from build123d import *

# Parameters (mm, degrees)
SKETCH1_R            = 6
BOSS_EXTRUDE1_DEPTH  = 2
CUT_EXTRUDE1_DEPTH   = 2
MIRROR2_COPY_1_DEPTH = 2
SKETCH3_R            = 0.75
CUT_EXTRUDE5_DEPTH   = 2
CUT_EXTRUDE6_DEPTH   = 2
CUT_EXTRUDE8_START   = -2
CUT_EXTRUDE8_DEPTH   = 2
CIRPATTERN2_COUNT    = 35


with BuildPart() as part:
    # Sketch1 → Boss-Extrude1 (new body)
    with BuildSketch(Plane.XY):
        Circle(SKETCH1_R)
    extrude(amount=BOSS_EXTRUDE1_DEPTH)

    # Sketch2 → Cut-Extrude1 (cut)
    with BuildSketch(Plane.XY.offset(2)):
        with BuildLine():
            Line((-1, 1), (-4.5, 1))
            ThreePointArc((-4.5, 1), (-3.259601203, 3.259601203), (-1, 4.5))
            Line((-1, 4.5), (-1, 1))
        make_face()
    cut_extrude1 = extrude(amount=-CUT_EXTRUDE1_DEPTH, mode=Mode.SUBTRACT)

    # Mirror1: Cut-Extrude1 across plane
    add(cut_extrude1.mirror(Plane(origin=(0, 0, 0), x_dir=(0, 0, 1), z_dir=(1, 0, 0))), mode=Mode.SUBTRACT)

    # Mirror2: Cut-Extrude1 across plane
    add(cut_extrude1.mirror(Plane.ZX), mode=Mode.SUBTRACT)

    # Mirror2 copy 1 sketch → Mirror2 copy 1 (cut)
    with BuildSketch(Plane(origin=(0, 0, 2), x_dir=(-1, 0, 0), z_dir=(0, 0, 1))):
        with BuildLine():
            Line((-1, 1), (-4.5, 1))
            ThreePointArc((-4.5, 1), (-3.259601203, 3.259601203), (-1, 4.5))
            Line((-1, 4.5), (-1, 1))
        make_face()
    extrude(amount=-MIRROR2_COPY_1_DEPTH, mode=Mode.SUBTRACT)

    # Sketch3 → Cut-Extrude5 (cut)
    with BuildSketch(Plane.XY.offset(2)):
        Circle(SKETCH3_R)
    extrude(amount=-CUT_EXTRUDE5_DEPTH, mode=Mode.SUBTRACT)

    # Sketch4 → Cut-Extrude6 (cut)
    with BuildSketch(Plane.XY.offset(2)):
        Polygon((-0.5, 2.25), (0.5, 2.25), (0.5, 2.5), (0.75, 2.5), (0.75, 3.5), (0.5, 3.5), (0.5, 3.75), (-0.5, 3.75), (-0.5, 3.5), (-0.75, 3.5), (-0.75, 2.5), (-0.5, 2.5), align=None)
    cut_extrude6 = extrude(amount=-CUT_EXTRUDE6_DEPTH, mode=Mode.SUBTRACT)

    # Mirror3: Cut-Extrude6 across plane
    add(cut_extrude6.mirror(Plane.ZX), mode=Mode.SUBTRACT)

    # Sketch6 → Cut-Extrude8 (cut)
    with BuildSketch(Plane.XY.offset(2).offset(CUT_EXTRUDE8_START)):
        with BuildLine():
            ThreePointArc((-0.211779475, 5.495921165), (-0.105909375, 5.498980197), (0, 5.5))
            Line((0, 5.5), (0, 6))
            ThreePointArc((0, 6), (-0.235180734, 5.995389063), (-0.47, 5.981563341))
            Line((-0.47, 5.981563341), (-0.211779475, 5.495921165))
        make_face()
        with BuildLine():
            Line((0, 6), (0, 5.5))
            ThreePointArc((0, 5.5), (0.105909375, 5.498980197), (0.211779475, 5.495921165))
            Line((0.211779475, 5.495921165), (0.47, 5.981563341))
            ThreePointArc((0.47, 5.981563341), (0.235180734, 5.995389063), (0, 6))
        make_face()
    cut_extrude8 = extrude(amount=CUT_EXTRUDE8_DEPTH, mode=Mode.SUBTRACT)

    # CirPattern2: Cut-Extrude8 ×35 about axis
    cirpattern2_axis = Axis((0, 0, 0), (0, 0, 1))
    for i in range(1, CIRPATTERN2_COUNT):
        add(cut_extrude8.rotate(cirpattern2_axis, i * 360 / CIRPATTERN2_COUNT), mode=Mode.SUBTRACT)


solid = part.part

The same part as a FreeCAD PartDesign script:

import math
import FreeCAD as App
import Part
import Sketcher
from FreeCAD import Vector
Q = App.Units.Quantity

doc = App.newDocument("Part")
body = doc.addObject("PartDesign::Body", "Body")

# Sketch on XY plane
sketch1 = doc.addObject("Sketcher::SketchObject", "Sketch")
body.addObject(sketch1)
sketch1.AttachmentSupport = (doc.XY_Plane, [""])
sketch1.MapMode = "FlatFace"
sketch1.addGeometry(Part.Circle(Vector(0, 0, 0), Vector(0, 0, 1), 6), False)
sketch1.addConstraint([
    Sketcher.Constraint("Coincident", 0, 3, -1, 1),
    Sketcher.Constraint("Diameter", 0, 12.0),
])
pad1 = doc.addObject("PartDesign::Pad", "Pad")
body.addObject(pad1)
pad1.Profile = sketch1
pad1.Length = 2

# Sketch on XY plane
sketch2 = doc.addObject("Sketcher::SketchObject", "Sketch001")
body.addObject(sketch2)
sketch2.AttachmentSupport = (doc.XY_Plane, [""])
sketch2.MapMode = "FlatFace"
sketch2.AttachmentOffset = App.Placement(Vector(0, 0, 2), App.Rotation())
sketch2.addGeometry([
    Part.LineSegment(Vector(-4.5, 1, 0), Vector(-1, 1, 0)),
    Part.LineSegment(Vector(-1, 1, 0), Vector(-1, 4.5, 0)),
    Part.ArcOfCircle(Part.Circle(Vector(0, 0, 0), Vector(0, 0, 1), 4.6), math.radians(103), math.radians(167)),
], False)
sketch2.addConstraint([
    Sketcher.Constraint("Coincident", 0, 2, 1, 1),
    Sketcher.Constraint("Coincident", 1, 2, 2, 1),
    Sketcher.Constraint("Coincident", 2, 2, 0, 1),
    Sketcher.Constraint("Horizontal", 0),
    Sketcher.Constraint("Vertical", 1),
    Sketcher.Constraint("Coincident", 2, 3, -1, 1),
    Sketcher.Constraint("Equal", 0, 1),
    Sketcher.Constraint("DistanceX", 0, 1, 0, 2, 3.5),
    Sketcher.Constraint("DistanceX", 0, 2, -1, 1, 1.0),
])
pocket1 = doc.addObject("PartDesign::Pocket", "Pocket")
body.addObject(pocket1)
pocket1.Profile = sketch2
pocket1.Length = 2
doc.recompute()

mirrored = doc.addObject("PartDesign::Mirrored", "Mirrored")
body.addObject(mirrored)
mirrored.Originals = [pocket1]
mirrored.MirrorPlane = (doc.YZ_Plane, [""])
body.Tip = mirrored
doc.recompute()

mirrored2 = doc.addObject("PartDesign::Mirrored", "Mirrored001")
body.addObject(mirrored2)
mirrored2.Originals = [pocket1]
mirrored2.MirrorPlane = (doc.XZ_Plane, [""])
body.Tip = mirrored2

# Sketch on XY plane
sketch3 = doc.addObject("Sketcher::SketchObject", "Sketch002")
body.addObject(sketch3)
sketch3.AttachmentSupport = (doc.XY_Plane, [""])
sketch3.MapMode = "FlatFace"
sketch3.AttachmentOffset = App.Placement(Vector(0, 0, 2), App.Rotation())
sketch3.addGeometry([
    Part.LineSegment(Vector(4.5, -1, 0), Vector(1, -1, 0)),
    Part.LineSegment(Vector(1, -1, 0), Vector(1, -4.5, 0)),
    Part.ArcOfCircle(Part.Circle(Vector(0, 0, 0), Vector(0, 0, 1), 4.6), math.radians(-77), math.radians(-13)),
], False)
sketch3.addConstraint([
    Sketcher.Constraint("Coincident", 0, 2, 1, 1),
    Sketcher.Constraint("Coincident", 1, 2, 2, 1),
    Sketcher.Constraint("Coincident", 2, 2, 0, 1),
    Sketcher.Constraint("Horizontal", 0),
    Sketcher.Constraint("Vertical", 1),
    Sketcher.Constraint("Coincident", 2, 3, -1, 1),
    Sketcher.Constraint("Equal", 0, 1),
    Sketcher.Constraint("DistanceX", 0, 2, 0, 1, 3.5),
    Sketcher.Constraint("DistanceX", -1, 1, 0, 2, 1.0),
])
pocket2 = doc.addObject("PartDesign::Pocket", "Pocket001")
body.addObject(pocket2)
pocket2.Profile = sketch3
pocket2.Length = 2

# Sketch on XY plane
sketch4 = doc.addObject("Sketcher::SketchObject", "Sketch003")
body.addObject(sketch4)
sketch4.AttachmentSupport = (doc.XY_Plane, [""])
sketch4.MapMode = "FlatFace"
sketch4.AttachmentOffset = App.Placement(Vector(0, 0, 2), App.Rotation())
sketch4.addGeometry(Part.Circle(Vector(0, 0, 0), Vector(0, 0, 1), 0.8), False)
sketch4.addConstraint([
    Sketcher.Constraint("Coincident", 0, 3, -1, 1),
    Sketcher.Constraint("Diameter", 0, 1.5),
])
pocket3 = doc.addObject("PartDesign::Pocket", "Pocket002")
body.addObject(pocket3)
pocket3.Profile = sketch4
pocket3.Length = 2

# Sketch on XY plane
sketch5 = doc.addObject("Sketcher::SketchObject", "Sketch004")
body.addObject(sketch5)
sketch5.AttachmentSupport = (doc.XY_Plane, [""])
sketch5.MapMode = "FlatFace"
sketch5.AttachmentOffset = App.Placement(Vector(0, 0, 2), App.Rotation())
sketch5.addGeometry([
    Part.LineSegment(Vector(-0.5, 2.25, 0), Vector(0.5, 2.25, 0)),  # 0
    Part.LineSegment(Vector(0.5, 2.25, 0), Vector(0.5, 2.5, 0)),  # 1
    Part.LineSegment(Vector(0.5, 2.5, 0), Vector(0.75, 2.5, 0)),  # 2
    Part.LineSegment(Vector(0.75, 2.5, 0), Vector(0.75, 3.5, 0)),  # 3
    Part.LineSegment(Vector(0.75, 3.5, 0), Vector(0.5, 3.5, 0)),  # 4
    Part.LineSegment(Vector(0.5, 3.5, 0), Vector(0.5, 3.75, 0)),  # 5
    Part.LineSegment(Vector(0.5, 3.75, 0), Vector(-0.5, 3.75, 0)),  # 6
    Part.LineSegment(Vector(-0.5, 3.75, 0), Vector(-0.5, 3.5, 0)),  # 7
    Part.LineSegment(Vector(-0.5, 3.5, 0), Vector(-0.75, 3.5, 0)),  # 8
    Part.LineSegment(Vector(-0.75, 3.5, 0), Vector(-0.75, 2.5, 0)),  # 9
    Part.LineSegment(Vector(-0.75, 2.5, 0), Vector(-0.5, 2.5, 0)),  # 10
    Part.LineSegment(Vector(-0.5, 2.5, 0), Vector(-0.5, 2.25, 0)),  # 11
], False)
sketch5.addConstraint([
    Sketcher.Constraint("Coincident", 0, 2, 1, 1),
    Sketcher.Constraint("Coincident", 1, 2, 2, 1),
    Sketcher.Constraint("Coincident", 2, 2, 3, 1),
    Sketcher.Constraint("Coincident", 3, 2, 4, 1),
    Sketcher.Constraint("Coincident", 4, 2, 5, 1),
    Sketcher.Constraint("Coincident", 5, 2, 6, 1),
    Sketcher.Constraint("Coincident", 6, 2, 7, 1),
    Sketcher.Constraint("Coincident", 7, 2, 8, 1),
    Sketcher.Constraint("Coincident", 8, 2, 9, 1),
    Sketcher.Constraint("Coincident", 9, 2, 10, 1),
    Sketcher.Constraint("Coincident", 10, 2, 11, 1),
    Sketcher.Constraint("Coincident", 11, 2, 0, 1),
    Sketcher.Constraint("Horizontal", 0),
    Sketcher.Constraint("Vertical", 1),
    Sketcher.Constraint("Horizontal", 2),
    Sketcher.Constraint("Vertical", 3),
    Sketcher.Constraint("Horizontal", 4),
    Sketcher.Constraint("Vertical", 5),
    Sketcher.Constraint("Horizontal", 6),
    Sketcher.Constraint("Vertical", 7),
    Sketcher.Constraint("Horizontal", 8),
    Sketcher.Constraint("Vertical", 9),
    Sketcher.Constraint("Horizontal", 10),
    Sketcher.Constraint("Vertical", 11),
    Sketcher.Constraint("Symmetric", 4, 2, 7, 2, -2),
    Sketcher.Constraint("Symmetric", 2, 2, 9, 2, -2),
    Sketcher.Constraint("Vertical", 1, 2, 4, 2),
    Sketcher.Constraint("Vertical", 7, 2, 10, 2),
    Sketcher.Constraint("Equal", 10, 1),
    Sketcher.Constraint("Equal", 6, 3),
    Sketcher.Constraint("Equal", 1, 5),
    Sketcher.Constraint("DistanceX", 0, 1, 0, 2, 1.0),
    Sketcher.Constraint("DistanceX", 2, 1, 2, 2, 0.25),
    Sketcher.Constraint("DistanceY", -1, 1, 1, 2, 2.5),
])
pocket4 = doc.addObject("PartDesign::Pocket", "Pocket003")
body.addObject(pocket4)
pocket4.Profile = sketch5
pocket4.Length = 2
doc.recompute()

mirrored3 = doc.addObject("PartDesign::Mirrored", "Mirrored002")
body.addObject(mirrored3)
mirrored3.Originals = [pocket4]
mirrored3.MirrorPlane = (doc.XZ_Plane, [""])
body.Tip = mirrored3

# Sketch on XY plane
sketch6 = doc.addObject("Sketcher::SketchObject", "Sketch005")
body.addObject(sketch6)
sketch6.AttachmentSupport = (doc.XY_Plane, [""])
sketch6.MapMode = "FlatFace"
sketch6.addGeometry([
    Part.ArcOfCircle(Part.Circle(Vector(0, 0, 0), Vector(0, 0, 1), 5.5), math.radians(90), math.radians(92.21)),  # 0
    Part.ArcOfCircle(Part.Circle(Vector(0, 0, 0), Vector(0, 0, 1), 5.5), math.radians(87.79), math.radians(90)),  # 1
    Part.LineSegment(Vector(0.21, 5.5, 0), Vector(0.47, 5.98, 0)),  # 2
    Part.ArcOfCircle(Part.Circle(Vector(0, 0, 0), Vector(0, 0, 1), 6), math.radians(85.51), math.radians(90)),  # 3
    Part.ArcOfCircle(Part.Circle(Vector(0, 0, 0), Vector(0, 0, 1), 6), math.radians(90), math.radians(94.49)),  # 4
    Part.LineSegment(Vector(-0.47, 5.98, 0), Vector(-0.21, 5.5, 0)),  # 5
], False)
sketch6.addConstraint([
    Sketcher.Constraint("Tangent", 0, 1, 1, 2),
    Sketcher.Constraint("Coincident", 1, 1, 2, 1),
    Sketcher.Constraint("Coincident", 2, 2, 3, 1),
    Sketcher.Constraint("Tangent", 3, 2, 4, 1),
    Sketcher.Constraint("Coincident", 4, 2, 5, 1),
    Sketcher.Constraint("Coincident", 5, 2, 0, 2),
    Sketcher.Constraint("Coincident", 0, 3, -1, 1),
    Sketcher.Constraint("Coincident", 3, 3, -1, 1),
    Sketcher.Constraint("Equal", 0, 1),
    Sketcher.Constraint("Equal", 3, 4),
    Sketcher.Constraint("PointOnObject", 0, 1, -2),
    Sketcher.Constraint("PointOnObject", 3, 2, -2),
    Sketcher.Constraint("Horizontal", 2, 2, 4, 2),
    Sketcher.Constraint("Horizontal", 1, 1, 5, 2),
    Sketcher.Constraint("Radius", 3, 6.000001),
    Sketcher.Constraint("Radius", 0, 5.499998),
    Sketcher.Constraint("Angle", 2, Q("62 deg")),
    Sketcher.Constraint("DistanceX", -1, 1, 2, 2, 0.47),
])
pocket5 = doc.addObject("PartDesign::Pocket", "Pocket004")
body.addObject(pocket5)
pocket5.Profile = sketch6
pocket5.Length = 2
pocket5.Reversed = True
doc.recompute()

polarpattern = doc.addObject("PartDesign::PolarPattern", "PolarPattern")
body.addObject(polarpattern)
polarpattern.Originals = [pocket5]
polarpattern.Axis = (doc.Z_Axis, [""])
polarpattern.Angle = 360
polarpattern.Occurrences = 35
body.Tip = polarpattern

doc.recompute()
